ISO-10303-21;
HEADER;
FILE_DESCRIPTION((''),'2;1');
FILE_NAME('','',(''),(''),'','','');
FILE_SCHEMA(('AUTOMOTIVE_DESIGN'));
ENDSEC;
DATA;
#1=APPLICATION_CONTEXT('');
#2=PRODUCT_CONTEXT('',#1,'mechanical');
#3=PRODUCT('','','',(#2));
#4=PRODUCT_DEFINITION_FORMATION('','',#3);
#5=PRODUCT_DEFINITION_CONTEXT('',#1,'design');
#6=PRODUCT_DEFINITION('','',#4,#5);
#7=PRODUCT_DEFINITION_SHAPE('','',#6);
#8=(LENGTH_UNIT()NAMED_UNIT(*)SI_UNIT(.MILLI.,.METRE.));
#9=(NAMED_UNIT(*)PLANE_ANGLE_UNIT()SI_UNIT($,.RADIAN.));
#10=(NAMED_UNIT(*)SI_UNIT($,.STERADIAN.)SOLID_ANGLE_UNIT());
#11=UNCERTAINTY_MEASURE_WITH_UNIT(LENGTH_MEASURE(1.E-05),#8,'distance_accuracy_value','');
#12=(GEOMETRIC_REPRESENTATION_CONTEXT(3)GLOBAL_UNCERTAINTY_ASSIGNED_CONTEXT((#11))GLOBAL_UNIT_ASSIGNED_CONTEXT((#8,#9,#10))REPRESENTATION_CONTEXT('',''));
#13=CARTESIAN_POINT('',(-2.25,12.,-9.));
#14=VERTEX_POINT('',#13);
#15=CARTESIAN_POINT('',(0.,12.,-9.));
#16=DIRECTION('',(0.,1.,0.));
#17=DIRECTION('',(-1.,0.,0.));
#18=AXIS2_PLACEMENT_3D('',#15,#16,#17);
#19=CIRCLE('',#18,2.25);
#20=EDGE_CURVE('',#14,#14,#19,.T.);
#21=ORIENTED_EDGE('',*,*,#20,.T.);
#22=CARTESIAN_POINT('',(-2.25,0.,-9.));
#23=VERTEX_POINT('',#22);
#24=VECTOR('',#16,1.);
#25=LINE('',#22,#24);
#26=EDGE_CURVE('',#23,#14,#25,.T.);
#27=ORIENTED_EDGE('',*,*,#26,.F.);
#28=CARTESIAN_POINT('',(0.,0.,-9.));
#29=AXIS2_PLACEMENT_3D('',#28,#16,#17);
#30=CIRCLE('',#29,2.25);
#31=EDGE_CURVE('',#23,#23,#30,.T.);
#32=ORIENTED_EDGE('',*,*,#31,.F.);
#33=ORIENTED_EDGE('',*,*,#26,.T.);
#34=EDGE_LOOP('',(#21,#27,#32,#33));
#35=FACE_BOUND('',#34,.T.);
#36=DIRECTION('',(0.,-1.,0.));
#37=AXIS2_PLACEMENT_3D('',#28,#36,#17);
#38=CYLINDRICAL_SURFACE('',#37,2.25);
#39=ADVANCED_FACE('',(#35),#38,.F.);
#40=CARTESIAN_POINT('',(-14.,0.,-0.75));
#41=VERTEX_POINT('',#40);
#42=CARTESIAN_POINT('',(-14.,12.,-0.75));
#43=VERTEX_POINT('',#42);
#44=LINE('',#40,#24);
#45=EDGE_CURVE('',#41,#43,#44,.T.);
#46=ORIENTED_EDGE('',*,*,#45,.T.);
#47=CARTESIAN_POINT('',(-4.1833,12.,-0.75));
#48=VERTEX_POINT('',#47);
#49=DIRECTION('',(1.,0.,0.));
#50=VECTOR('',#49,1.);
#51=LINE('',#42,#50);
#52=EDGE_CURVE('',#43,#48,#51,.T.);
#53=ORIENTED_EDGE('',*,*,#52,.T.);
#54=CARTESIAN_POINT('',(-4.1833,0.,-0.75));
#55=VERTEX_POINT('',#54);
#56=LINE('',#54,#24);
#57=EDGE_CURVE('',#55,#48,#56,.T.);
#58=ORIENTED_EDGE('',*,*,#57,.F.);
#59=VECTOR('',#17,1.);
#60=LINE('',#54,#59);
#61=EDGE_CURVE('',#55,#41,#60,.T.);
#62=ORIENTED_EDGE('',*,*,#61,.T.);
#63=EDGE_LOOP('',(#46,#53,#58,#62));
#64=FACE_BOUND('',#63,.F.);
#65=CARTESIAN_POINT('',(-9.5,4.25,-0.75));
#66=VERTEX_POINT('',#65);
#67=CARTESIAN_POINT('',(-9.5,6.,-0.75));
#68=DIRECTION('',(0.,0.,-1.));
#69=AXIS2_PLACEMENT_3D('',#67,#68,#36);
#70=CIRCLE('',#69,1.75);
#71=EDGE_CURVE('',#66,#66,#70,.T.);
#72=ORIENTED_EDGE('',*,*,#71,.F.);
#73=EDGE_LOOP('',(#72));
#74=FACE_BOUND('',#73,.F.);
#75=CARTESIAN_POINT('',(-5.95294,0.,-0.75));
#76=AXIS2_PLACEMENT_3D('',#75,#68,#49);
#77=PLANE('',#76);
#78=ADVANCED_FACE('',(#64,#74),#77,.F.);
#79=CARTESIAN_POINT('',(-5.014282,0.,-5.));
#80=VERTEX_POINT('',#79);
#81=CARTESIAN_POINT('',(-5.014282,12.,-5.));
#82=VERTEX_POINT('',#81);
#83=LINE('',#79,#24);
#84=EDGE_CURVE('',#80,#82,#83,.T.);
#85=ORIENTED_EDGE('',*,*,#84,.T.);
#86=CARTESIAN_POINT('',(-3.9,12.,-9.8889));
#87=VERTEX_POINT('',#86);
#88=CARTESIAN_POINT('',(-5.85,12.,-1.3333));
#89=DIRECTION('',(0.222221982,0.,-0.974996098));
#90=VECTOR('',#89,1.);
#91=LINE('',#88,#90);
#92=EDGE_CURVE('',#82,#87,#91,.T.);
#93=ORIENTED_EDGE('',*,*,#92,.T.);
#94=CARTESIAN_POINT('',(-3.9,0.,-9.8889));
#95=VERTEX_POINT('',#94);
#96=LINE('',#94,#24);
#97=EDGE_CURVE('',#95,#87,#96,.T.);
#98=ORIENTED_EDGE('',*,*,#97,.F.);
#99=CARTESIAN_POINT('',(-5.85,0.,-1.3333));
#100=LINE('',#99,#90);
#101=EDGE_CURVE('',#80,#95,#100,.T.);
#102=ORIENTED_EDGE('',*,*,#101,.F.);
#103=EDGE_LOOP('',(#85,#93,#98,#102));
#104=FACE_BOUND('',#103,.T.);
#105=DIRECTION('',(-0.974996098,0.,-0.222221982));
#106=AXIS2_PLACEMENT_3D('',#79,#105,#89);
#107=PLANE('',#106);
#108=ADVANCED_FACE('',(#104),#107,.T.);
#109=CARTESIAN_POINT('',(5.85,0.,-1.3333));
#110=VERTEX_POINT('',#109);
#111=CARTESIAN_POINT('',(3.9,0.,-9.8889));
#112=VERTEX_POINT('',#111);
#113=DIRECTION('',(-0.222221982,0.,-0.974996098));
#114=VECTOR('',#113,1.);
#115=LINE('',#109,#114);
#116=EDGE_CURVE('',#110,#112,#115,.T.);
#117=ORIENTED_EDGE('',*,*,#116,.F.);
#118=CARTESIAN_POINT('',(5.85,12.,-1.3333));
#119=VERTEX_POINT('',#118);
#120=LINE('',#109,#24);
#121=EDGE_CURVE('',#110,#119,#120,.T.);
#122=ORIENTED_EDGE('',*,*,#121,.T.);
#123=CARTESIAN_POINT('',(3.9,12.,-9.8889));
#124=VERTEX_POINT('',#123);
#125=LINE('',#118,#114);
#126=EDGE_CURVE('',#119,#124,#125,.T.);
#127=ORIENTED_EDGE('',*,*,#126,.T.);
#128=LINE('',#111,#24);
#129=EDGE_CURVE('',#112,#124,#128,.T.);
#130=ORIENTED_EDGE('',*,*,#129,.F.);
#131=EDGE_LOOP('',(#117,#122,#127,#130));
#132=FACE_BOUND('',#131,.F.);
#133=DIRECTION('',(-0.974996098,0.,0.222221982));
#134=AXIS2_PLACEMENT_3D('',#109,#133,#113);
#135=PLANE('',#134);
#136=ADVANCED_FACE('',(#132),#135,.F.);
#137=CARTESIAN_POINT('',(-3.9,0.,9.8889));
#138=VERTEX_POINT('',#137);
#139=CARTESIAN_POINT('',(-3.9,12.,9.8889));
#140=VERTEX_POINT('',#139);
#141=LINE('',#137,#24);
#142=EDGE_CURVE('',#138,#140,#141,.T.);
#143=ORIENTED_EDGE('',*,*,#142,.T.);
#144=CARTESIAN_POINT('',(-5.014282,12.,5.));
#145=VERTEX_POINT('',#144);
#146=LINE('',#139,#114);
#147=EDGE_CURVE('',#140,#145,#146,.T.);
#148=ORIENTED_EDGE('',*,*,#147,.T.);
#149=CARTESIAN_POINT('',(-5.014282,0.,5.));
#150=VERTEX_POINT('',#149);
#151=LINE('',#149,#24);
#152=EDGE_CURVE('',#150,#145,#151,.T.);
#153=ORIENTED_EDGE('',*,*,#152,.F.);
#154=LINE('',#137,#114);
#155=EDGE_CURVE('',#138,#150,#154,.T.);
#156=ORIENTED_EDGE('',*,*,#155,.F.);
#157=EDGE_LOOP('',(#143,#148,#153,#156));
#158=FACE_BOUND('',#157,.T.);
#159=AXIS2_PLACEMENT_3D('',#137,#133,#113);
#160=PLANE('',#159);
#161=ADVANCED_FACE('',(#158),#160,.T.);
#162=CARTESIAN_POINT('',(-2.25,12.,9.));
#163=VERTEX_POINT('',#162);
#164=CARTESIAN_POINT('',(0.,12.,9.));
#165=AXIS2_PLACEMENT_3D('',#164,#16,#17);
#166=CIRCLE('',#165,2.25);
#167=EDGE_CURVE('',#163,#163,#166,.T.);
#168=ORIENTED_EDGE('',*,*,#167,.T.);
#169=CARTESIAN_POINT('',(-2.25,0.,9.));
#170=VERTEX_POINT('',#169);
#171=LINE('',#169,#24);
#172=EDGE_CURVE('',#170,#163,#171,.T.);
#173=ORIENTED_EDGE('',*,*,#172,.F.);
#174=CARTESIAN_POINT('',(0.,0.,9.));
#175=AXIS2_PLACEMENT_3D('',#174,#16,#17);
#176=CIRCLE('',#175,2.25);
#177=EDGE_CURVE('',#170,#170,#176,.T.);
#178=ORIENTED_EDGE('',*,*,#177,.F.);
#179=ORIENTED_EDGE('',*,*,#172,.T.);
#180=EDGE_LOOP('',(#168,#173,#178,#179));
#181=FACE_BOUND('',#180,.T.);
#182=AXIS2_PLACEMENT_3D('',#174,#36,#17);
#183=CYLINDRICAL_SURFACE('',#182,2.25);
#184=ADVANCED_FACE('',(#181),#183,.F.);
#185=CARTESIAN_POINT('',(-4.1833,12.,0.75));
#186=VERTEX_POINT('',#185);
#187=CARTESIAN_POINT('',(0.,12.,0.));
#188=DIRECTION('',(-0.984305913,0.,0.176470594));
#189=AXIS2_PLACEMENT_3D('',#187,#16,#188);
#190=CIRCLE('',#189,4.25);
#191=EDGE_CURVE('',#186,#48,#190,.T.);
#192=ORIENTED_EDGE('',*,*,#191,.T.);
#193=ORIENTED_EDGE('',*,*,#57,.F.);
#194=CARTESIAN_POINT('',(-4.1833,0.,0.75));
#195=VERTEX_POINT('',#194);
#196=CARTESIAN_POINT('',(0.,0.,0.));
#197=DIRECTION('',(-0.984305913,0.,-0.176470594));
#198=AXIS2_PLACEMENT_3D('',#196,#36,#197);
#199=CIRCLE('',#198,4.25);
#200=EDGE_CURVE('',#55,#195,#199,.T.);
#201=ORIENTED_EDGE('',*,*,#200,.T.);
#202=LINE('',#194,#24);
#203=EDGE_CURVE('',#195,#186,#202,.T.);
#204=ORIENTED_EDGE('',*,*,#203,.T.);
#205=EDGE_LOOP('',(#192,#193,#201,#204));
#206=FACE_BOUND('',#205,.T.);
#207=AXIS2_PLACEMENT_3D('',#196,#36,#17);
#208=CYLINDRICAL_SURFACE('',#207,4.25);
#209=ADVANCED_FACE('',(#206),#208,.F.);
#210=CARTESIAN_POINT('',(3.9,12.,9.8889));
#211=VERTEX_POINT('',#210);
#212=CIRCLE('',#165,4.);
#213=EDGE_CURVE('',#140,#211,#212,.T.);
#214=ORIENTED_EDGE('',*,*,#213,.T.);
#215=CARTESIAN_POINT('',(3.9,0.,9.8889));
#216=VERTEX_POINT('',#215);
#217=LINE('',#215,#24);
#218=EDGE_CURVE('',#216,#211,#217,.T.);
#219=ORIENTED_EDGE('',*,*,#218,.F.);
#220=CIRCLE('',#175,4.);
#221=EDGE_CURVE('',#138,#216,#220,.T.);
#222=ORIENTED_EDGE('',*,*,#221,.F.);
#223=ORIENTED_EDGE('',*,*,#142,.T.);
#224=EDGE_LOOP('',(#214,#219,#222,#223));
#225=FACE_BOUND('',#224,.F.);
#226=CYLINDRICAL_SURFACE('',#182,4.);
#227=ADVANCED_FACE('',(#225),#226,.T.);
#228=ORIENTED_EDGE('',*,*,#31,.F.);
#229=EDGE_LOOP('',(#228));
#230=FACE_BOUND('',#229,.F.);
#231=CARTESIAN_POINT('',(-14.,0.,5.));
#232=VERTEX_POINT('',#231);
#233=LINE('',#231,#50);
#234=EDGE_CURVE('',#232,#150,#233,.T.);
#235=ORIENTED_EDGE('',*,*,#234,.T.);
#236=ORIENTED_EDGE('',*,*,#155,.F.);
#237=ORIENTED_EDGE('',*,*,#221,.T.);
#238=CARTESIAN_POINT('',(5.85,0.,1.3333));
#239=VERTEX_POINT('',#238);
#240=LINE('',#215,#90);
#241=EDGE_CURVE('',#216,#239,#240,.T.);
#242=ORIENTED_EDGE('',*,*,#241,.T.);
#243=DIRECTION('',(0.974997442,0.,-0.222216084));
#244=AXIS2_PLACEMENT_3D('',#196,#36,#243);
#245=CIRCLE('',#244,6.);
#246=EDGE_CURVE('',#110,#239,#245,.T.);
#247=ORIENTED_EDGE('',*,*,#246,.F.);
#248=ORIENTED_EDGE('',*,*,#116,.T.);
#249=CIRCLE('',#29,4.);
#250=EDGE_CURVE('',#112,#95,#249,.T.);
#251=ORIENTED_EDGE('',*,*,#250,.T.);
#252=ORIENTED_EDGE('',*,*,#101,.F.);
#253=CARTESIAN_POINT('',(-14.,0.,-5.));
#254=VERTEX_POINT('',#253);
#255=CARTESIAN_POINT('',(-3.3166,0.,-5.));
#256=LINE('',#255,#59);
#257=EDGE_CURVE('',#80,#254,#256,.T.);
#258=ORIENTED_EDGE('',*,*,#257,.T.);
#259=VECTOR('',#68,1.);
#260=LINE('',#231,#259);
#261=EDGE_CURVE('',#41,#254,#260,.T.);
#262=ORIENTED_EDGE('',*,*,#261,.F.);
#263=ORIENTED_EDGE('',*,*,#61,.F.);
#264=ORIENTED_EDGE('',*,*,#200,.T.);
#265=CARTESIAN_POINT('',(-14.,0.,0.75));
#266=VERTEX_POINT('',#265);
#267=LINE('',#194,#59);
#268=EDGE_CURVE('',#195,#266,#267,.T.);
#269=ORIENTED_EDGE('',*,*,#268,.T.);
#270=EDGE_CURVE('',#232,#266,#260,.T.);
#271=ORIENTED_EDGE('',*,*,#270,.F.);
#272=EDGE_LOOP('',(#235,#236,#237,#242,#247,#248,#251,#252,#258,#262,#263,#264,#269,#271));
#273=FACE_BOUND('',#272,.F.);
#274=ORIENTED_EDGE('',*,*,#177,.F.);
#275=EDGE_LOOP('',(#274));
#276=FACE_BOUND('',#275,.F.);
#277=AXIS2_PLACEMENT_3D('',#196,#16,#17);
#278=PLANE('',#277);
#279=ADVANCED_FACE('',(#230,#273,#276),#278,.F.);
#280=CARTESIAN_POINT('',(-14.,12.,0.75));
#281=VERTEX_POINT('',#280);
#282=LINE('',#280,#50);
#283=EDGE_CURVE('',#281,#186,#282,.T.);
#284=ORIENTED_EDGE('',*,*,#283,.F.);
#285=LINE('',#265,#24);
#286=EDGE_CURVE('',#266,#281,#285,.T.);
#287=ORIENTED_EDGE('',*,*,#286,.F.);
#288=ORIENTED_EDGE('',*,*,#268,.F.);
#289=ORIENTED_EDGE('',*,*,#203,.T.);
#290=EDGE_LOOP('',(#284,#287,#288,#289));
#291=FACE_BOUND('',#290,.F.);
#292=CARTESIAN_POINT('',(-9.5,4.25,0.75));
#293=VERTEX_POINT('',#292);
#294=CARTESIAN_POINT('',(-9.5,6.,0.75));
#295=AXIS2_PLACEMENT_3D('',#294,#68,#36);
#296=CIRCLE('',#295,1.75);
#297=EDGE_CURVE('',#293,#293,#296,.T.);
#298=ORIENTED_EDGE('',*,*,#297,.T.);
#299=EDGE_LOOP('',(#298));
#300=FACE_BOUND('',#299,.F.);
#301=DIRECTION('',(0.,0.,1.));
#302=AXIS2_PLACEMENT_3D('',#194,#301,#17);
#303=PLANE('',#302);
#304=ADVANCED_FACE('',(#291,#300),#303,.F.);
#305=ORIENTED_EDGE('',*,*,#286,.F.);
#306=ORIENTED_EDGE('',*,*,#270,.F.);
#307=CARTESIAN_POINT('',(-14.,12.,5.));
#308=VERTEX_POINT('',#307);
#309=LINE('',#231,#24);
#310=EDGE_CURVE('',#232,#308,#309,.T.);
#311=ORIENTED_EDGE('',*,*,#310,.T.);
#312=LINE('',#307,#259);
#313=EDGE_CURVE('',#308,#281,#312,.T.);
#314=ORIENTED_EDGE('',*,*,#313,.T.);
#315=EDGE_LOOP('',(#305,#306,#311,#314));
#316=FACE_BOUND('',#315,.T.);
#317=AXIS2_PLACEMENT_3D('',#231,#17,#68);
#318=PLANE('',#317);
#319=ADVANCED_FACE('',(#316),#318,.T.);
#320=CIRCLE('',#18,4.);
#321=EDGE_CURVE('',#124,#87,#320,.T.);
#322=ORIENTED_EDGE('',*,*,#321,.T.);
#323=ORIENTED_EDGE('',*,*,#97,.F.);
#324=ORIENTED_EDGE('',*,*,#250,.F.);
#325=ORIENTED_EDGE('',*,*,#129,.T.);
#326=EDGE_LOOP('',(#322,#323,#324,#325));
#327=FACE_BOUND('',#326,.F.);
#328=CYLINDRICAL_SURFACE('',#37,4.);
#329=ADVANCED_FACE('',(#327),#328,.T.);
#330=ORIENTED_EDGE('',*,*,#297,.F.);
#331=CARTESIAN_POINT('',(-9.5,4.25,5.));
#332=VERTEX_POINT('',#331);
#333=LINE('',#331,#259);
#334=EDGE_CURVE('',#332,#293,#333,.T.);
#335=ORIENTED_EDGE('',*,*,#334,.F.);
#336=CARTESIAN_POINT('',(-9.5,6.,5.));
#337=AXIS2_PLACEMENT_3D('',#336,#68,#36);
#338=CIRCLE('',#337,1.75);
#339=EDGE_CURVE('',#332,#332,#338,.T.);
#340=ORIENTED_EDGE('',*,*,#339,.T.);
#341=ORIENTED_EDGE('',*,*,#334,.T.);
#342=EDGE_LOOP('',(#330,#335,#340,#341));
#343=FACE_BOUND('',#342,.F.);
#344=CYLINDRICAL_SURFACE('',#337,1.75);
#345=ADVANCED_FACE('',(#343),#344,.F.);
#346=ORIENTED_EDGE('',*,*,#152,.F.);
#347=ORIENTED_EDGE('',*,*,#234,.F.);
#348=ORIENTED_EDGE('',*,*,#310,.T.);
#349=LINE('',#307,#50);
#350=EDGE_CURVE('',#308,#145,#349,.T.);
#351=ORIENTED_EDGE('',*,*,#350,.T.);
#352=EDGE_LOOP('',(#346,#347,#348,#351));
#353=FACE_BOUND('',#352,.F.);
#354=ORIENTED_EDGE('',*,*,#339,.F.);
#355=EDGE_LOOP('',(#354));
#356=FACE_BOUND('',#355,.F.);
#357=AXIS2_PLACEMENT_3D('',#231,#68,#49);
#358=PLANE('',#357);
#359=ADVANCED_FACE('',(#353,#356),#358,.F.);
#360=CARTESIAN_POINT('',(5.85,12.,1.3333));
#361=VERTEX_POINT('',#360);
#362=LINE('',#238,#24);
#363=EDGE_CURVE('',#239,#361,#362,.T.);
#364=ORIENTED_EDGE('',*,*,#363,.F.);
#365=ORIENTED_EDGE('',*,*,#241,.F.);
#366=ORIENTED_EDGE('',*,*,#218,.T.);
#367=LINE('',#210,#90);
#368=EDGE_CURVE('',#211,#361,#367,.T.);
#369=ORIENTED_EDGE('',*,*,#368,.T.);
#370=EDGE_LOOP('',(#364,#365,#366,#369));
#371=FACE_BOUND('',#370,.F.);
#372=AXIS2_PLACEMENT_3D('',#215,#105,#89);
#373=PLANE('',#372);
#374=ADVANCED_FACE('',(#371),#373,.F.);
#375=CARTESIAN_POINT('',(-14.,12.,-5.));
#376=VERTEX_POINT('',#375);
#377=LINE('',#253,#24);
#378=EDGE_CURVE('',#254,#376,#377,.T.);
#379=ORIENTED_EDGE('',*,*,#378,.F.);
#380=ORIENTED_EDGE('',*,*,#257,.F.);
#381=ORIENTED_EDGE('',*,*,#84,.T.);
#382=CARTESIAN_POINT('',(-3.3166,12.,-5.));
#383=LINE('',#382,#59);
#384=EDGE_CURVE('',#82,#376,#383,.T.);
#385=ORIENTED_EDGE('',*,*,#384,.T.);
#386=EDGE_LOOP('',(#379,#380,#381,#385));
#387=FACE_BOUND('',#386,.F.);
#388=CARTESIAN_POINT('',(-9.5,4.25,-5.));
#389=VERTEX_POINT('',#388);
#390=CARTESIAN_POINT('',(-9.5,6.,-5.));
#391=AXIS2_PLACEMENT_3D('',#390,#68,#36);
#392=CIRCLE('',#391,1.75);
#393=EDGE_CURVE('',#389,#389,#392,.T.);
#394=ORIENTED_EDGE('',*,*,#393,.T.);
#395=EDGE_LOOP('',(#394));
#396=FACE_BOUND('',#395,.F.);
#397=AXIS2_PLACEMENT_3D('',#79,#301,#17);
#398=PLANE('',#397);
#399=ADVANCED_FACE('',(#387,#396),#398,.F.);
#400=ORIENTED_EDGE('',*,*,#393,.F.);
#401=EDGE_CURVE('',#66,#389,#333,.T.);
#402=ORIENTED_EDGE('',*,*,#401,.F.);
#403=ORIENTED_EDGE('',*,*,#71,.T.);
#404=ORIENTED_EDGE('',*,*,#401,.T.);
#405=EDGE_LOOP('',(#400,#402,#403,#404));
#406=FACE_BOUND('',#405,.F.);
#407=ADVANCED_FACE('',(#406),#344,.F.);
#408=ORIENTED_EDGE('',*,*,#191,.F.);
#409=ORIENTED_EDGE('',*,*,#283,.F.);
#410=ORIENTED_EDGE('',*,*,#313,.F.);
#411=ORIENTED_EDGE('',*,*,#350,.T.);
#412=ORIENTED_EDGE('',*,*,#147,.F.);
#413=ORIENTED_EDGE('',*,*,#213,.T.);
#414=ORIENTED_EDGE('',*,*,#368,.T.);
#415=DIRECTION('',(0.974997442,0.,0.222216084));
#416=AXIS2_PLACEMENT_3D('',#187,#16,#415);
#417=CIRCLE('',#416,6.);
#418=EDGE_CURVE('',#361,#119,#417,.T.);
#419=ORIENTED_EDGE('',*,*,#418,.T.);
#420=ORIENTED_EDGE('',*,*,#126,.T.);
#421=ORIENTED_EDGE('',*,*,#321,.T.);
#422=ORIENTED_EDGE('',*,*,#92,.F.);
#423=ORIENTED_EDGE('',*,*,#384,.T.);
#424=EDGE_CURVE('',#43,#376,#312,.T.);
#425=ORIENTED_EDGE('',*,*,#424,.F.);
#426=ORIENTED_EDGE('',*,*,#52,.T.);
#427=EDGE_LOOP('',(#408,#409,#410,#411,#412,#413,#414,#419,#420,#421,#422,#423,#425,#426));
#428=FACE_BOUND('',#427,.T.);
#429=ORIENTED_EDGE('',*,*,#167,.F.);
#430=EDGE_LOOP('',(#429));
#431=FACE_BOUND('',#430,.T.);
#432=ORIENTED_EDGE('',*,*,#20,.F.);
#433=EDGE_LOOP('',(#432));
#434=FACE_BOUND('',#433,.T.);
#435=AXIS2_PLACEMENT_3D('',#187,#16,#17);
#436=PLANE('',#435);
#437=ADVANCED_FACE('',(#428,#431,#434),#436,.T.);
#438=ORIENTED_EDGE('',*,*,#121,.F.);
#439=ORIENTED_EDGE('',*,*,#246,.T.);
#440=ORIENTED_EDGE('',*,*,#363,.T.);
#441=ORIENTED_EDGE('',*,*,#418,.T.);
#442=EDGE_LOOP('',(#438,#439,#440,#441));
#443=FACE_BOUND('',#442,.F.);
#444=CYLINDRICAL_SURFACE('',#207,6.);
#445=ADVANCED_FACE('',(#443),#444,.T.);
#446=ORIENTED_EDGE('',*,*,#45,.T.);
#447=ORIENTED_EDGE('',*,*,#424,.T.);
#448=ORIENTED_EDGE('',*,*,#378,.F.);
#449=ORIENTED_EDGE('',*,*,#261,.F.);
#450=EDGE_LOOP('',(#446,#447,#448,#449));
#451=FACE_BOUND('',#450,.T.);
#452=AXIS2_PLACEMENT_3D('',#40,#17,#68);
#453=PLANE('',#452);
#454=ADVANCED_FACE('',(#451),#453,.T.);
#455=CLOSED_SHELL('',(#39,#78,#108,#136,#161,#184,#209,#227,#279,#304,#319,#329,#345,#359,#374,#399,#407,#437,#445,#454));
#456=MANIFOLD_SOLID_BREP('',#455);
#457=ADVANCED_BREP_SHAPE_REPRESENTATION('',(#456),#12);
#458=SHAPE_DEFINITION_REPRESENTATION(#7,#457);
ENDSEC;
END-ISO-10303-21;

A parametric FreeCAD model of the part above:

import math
import FreeCAD as App
import Part
import Sketcher

doc = App.newDocument("Part")
body = doc.addObject("PartDesign::Body", "Body")

sketch1 = body.newObject("Sketcher::SketchObject", "Sketch")
sketch1.AttachmentSupport = (doc.getObject("XZ_Plane"), [""])
sketch1.MapMode = "FlatFace"
sketch1.addGeometry([
    Part.LineSegment(App.Vector(-4.2, 0.8, 0), App.Vector(-14, 0.8, 0)),
    Part.LineSegment(App.Vector(-14, 0.8, 0), App.Vector(-14, 5, 0)),
    Part.LineSegment(App.Vector(-14, 5, 0), App.Vector(-5, 5, 0)),
    Part.LineSegment(App.Vector(-5, 5, 0), App.Vector(-3.9, 9.9, 0)),
    Part.ArcOfCircle(Part.Circle(App.Vector(0, 9, 0), App.Vector(0, 0, 1), 4), math.radians(13), math.radians(167)),
    Part.LineSegment(App.Vector(3.9, 9.9, 0), App.Vector(5.8, 1.3, 0)),
    Part.ArcOfCircle(Part.Circle(App.Vector(0, 0, 0), App.Vector(0, 0, 1), 6), math.radians(-13), math.radians(13)),
    Part.LineSegment(App.Vector(5.8, -1.3, 0), App.Vector(3.9, -9.9, 0)),
    Part.ArcOfCircle(Part.Circle(App.Vector(0, -9, 0), App.Vector(0, 0, 1), 4), math.radians(-167), math.radians(-13)),
    Part.LineSegment(App.Vector(-3.9, -9.9, 0), App.Vector(-5, -5, 0)),
    Part.LineSegment(App.Vector(-5, -5, 0), App.Vector(-14, -5, 0)),
    Part.LineSegment(App.Vector(-14, -5, 0), App.Vector(-14, -0.8, 0)),
    Part.LineSegment(App.Vector(-14, -0.8, 0), App.Vector(-4.2, -0.8, 0)),
    Part.ArcOfCircle(Part.Circle(App.Vector(0, 0, 0), App.Vector(0, 0, 1), 4.2), math.radians(-170), math.radians(170)),
    Part.Circle(App.Vector(0, 9, 0), App.Vector(0, 0, 1), 2.2),
    Part.Circle(App.Vector(0, -9, 0), App.Vector(0, 0, 1), 2.2),
], False)
sketch1.addConstraint([
    Sketcher.Constraint("Coincident", 0, 2, 1, 1),
    Sketcher.Constraint("Coincident", 1, 2, 2, 1),
    Sketcher.Constraint("Coincident", 2, 2, 3, 1),
    Sketcher.Constraint("Tangent", 3, 2, 4, 2),
    Sketcher.Constraint("Tangent", 4, 1, 5, 1),
    Sketcher.Constraint("Tangent", 5, 2, 6, 2),
    Sketcher.Constraint("Tangent", 6, 1, 7, 1),
    Sketcher.Constraint("Tangent", 7, 2, 8, 2),
    Sketcher.Constraint("Tangent", 8, 1, 9, 1),
    Sketcher.Constraint("Coincident", 9, 2, 10, 1),
    Sketcher.Constraint("Coincident", 10, 2, 11, 1),
    Sketcher.Constraint("Coincident", 11, 2, 12, 1),
    Sketcher.Constraint("Coincident", 12, 2, 13, 1),
    Sketcher.Constraint("Coincident", 13, 2, 0, 1),
    Sketcher.Constraint("Horizontal", 0),
    Sketcher.Constraint("Vertical", 1),
    Sketcher.Constraint("Horizontal", 2),
    Sketcher.Constraint("Horizontal", 10),
    Sketcher.Constraint("Vertical", 11),
    Sketcher.Constraint("Horizontal", 12),
    Sketcher.Constraint("Coincident", 6, 3, -1, 1),
    Sketcher.Constraint("Coincident", 13, 3, -1, 1),
    Sketcher.Constraint("Coincident", 14, 3, 4, 3),
    Sketcher.Constraint("Coincident", 15, 3, 8, 3),
    Sketcher.Constraint("Equal", 4, 8),
    Sketcher.Constraint("Equal", 14, 15),
    Sketcher.Constraint("Symmetric", 4, 3, 8, 3, -1, 1),
    Sketcher.Constraint("Symmetric", 3, 2, 4, 1, -2),
    Sketcher.Constraint("Symmetric", 2, 2, 9, 2, -1),
    Sketcher.Constraint("Symmetric", 0, 2, 11, 2, -1),
    Sketcher.Constraint("Radius", 4, 4.0),
    Sketcher.Constraint("Radius", 6, 6.0),
    Sketcher.Constraint("Diameter", 14, 4.5),
    Sketcher.Constraint("Radius", 13, 4.25),
    Sketcher.Constraint("DistanceY", -1, 1, 4, 3, 9.0),
    Sketcher.Constraint("DistanceX", 0, 2, -1, 1, 14.0),
    Sketcher.Constraint("DistanceY", -1, 1, 1, 2, 5.0),
    Sketcher.Constraint("DistanceY", 11, 2, 0, 2, 1.5),
])
pad1 = body.newObject("PartDesign::Pad", "Pad")
pad1.Profile = sketch1
pad1.Length = 12
pad1.Reversed = True

sketch2 = body.newObject("Sketcher::SketchObject", "Sketch001")
sketch2.AttachmentSupport = (doc.getObject("XY_Plane"), [""])
sketch2.MapMode = "FlatFace"
sketch2.AttachmentOffset = App.Placement(App.Vector(0, 0, 5), App.Rotation())
sketch2.addGeometry(Part.Circle(App.Vector(-9.5, 6, 0), App.Vector(0, 0, 1), 1.8), False)
sketch2.addConstraint([
    Sketcher.Constraint("Diameter", 0, 3.5),
    Sketcher.Constraint("DistanceY", -1, 1, 0, 3, 6.0),
    Sketcher.Constraint("DistanceX", 0, 3, -1, 1, 9.5),
])
doc.recompute()
hole = body.newObject("PartDesign::Hole", "Hole")
hole.Profile = sketch2
hole.ThreadType = "None"
hole.Diameter = 3.5
hole.DepthType = "Dimension"
hole.Depth = 10
hole.DrillPoint = "Flat"

doc.recompute()
